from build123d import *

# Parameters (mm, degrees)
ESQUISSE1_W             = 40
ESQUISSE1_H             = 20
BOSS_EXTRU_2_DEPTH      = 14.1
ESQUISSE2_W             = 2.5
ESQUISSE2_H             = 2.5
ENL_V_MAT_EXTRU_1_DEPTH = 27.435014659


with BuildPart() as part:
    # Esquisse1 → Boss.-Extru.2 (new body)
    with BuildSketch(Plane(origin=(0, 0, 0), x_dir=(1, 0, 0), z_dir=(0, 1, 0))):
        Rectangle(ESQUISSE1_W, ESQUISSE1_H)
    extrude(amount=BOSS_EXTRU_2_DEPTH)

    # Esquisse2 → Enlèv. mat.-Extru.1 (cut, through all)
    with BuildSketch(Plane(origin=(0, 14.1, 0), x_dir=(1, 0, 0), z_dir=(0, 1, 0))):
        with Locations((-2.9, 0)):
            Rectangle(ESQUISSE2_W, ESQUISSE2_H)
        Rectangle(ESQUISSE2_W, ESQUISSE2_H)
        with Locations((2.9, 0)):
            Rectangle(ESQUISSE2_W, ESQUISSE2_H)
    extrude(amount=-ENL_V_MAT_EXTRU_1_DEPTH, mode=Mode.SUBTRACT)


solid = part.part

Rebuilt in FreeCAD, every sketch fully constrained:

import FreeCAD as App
import Part
import Sketcher
from FreeCAD import Vector
Q = App.Units.Quantity

doc = App.newDocument("Part")
body = doc.addObject("PartDesign::Body", "Body")

# Sketch on XZ plane
sketch1 = body.newObject("Sketcher::SketchObject", "Sketch")
sketch1.AttachmentSupport = (doc.getObject("XZ_Plane"), [""])
sketch1.MapMode = "FlatFace"
sketch1.addGeometry([
    Part.LineSegment(Vector(-20, -10, 0), Vector(-20, 10, 0)),
    Part.LineSegment(Vector(-20, 10, 0), Vector(20, 10, 0)),
    Part.LineSegment(Vector(20, 10, 0), Vector(20, -10, 0)),
    Part.LineSegment(Vector(20, -10, 0), Vector(-20, -10, 0)),
], False)
sketch1.addConstraint([
    Sketcher.Constraint("Coincident", 0, 2, 1, 1),
    Sketcher.Constraint("Coincident", 1, 2, 2, 1),
    Sketcher.Constraint("Coincident", 2, 2, 3, 1),
    Sketcher.Constraint("Coincident", 3, 2, 0, 1),
    Sketcher.Constraint("Vertical", 0),
    Sketcher.Constraint("Horizontal", 1),
    Sketcher.Constraint("Vertical", 2),
    Sketcher.Constraint("Horizontal", 3),
    Sketcher.Constraint("Symmetric", 0, 2, 2, 2, -1, 1),
    Sketcher.Constraint("DistanceX", 1, 1, 1, 2, Q("40 mm")),
    Sketcher.Constraint("DistanceY", 0, 1, 0, 2, Q("20 mm")),
])
pad1 = body.newObject("PartDesign::Pad", "Pad")
pad1.Profile = sketch1
pad1.Length = 14.1
pad1.Reversed = True

# Sketch on XZ plane
sketch2 = body.newObject("Sketcher::SketchObject", "Sketch001")
sketch2.AttachmentSupport = (doc.getObject("XZ_Plane"), [""])
sketch2.MapMode = "FlatFace"
sketch2.AttachmentOffset = App.Placement(Vector(0, 0, -14.1), App.Rotation())
sketch2.addGeometry([
    Part.LineSegment(Vector(-4.2, -1.2, 0), Vector(-4.2, 1.2, 0)),  # 0
    Part.LineSegment(Vector(-4.2, 1.2, 0), Vector(-1.6, 1.2, 0)),  # 1
    Part.LineSegment(Vector(-1.6, 1.2, 0), Vector(-1.6, -1.2, 0)),  # 2
    Part.LineSegment(Vector(-1.6, -1.2, 0), Vector(-4.2, -1.2, 0)),  # 3
    Part.LineSegment(Vector(-1.2, -1.2, 0), Vector(-1.2, 1.2, 0)),  # 4
    Part.LineSegment(Vector(-1.2, 1.2, 0), Vector(1.2, 1.2, 0)),  # 5
    Part.LineSegment(Vector(1.2, 1.2, 0), Vector(1.2, -1.2, 0)),  # 6
    Part.LineSegment(Vector(1.2, -1.2, 0), Vector(-1.2, -1.2, 0)),  # 7
    Part.LineSegment(Vector(1.6, -1.2, 0), Vector(1.6, 1.2, 0)),  # 8
    Part.LineSegment(Vector(1.6, 1.2, 0), Vector(4.2, 1.2, 0)),  # 9
    Part.LineSegment(Vector(4.2, 1.2, 0), Vector(4.2, -1.2, 0)),  # 10
    Part.LineSegment(Vector(4.2, -1.2, 0), Vector(1.6, -1.2, 0)),  # 11
], False)
sketch2.addConstraint([
    Sketcher.Constraint("Coincident", 0, 2, 1, 1),
    Sketcher.Constraint("Coincident", 1, 2, 2, 1),
    Sketcher.Constraint("Coincident", 2, 2, 3, 1),
    Sketcher.Constraint("Coincident", 3, 2, 0, 1),
    Sketcher.Constraint("Coincident", 4, 2, 5, 1),
    Sketcher.Constraint("Coincident", 5, 2, 6, 1),
    Sketcher.Constraint("Coincident", 6, 2, 7, 1),
    Sketcher.Constraint("Coincident", 7, 2, 4, 1),
    Sketcher.Constraint("Coincident", 8, 2, 9, 1),
    Sketcher.Constraint("Coincident", 9, 2, 10, 1),
    Sketcher.Constraint("Coincident", 10, 2, 11, 1),
    Sketcher.Constraint("Coincident", 11, 2, 8, 1),
    Sketcher.Constraint("Vertical", 0),
    Sketcher.Constraint("Horizontal", 1),
    Sketcher.Constraint("Vertical", 2),
    Sketcher.Constraint("Horizontal", 3),
    Sketcher.Constraint("Vertical", 4),
    Sketcher.Constraint("Horizontal", 5),
    Sketcher.Constraint("Vertical", 6),
    Sketcher.Constraint("Horizontal", 7),
    Sketcher.Constraint("Vertical", 8),
    Sketcher.Constraint("Horizontal", 9),
    Sketcher.Constraint("Vertical", 10),
    Sketcher.Constraint("Horizontal", 11),
    Sketcher.Constraint("Symmetric", 4, 2, 6, 2, -1, 1),
    Sketcher.Constraint("Symmetric", 2, 2, 8, 2, -1, 1),
    Sketcher.Constraint("Symmetric", 0, 2, 10, 2, -1, 1),
    Sketcher.Constraint("Horizontal", 1, 2, 4, 2),
    Sketcher.Constraint("Horizontal", 3, 2, 6, 2),
    Sketcher.Constraint("Equal", 3, 5),
    Sketcher.Constraint("Equal", 11, 0),
    Sketcher.Constraint("DistanceX", 1, 1, 1, 2, Q("2.5 mm")),
    Sketcher.Constraint("DistanceX", 1, 2, 4, 2, Q("0.4 mm")),
])
pocket1 = body.newObject("PartDesign::Pocket", "Pocket")
pocket1.Profile = sketch2
pocket1.Type = "ThroughAll"
pocket1.Reversed = True

doc.recompute()
